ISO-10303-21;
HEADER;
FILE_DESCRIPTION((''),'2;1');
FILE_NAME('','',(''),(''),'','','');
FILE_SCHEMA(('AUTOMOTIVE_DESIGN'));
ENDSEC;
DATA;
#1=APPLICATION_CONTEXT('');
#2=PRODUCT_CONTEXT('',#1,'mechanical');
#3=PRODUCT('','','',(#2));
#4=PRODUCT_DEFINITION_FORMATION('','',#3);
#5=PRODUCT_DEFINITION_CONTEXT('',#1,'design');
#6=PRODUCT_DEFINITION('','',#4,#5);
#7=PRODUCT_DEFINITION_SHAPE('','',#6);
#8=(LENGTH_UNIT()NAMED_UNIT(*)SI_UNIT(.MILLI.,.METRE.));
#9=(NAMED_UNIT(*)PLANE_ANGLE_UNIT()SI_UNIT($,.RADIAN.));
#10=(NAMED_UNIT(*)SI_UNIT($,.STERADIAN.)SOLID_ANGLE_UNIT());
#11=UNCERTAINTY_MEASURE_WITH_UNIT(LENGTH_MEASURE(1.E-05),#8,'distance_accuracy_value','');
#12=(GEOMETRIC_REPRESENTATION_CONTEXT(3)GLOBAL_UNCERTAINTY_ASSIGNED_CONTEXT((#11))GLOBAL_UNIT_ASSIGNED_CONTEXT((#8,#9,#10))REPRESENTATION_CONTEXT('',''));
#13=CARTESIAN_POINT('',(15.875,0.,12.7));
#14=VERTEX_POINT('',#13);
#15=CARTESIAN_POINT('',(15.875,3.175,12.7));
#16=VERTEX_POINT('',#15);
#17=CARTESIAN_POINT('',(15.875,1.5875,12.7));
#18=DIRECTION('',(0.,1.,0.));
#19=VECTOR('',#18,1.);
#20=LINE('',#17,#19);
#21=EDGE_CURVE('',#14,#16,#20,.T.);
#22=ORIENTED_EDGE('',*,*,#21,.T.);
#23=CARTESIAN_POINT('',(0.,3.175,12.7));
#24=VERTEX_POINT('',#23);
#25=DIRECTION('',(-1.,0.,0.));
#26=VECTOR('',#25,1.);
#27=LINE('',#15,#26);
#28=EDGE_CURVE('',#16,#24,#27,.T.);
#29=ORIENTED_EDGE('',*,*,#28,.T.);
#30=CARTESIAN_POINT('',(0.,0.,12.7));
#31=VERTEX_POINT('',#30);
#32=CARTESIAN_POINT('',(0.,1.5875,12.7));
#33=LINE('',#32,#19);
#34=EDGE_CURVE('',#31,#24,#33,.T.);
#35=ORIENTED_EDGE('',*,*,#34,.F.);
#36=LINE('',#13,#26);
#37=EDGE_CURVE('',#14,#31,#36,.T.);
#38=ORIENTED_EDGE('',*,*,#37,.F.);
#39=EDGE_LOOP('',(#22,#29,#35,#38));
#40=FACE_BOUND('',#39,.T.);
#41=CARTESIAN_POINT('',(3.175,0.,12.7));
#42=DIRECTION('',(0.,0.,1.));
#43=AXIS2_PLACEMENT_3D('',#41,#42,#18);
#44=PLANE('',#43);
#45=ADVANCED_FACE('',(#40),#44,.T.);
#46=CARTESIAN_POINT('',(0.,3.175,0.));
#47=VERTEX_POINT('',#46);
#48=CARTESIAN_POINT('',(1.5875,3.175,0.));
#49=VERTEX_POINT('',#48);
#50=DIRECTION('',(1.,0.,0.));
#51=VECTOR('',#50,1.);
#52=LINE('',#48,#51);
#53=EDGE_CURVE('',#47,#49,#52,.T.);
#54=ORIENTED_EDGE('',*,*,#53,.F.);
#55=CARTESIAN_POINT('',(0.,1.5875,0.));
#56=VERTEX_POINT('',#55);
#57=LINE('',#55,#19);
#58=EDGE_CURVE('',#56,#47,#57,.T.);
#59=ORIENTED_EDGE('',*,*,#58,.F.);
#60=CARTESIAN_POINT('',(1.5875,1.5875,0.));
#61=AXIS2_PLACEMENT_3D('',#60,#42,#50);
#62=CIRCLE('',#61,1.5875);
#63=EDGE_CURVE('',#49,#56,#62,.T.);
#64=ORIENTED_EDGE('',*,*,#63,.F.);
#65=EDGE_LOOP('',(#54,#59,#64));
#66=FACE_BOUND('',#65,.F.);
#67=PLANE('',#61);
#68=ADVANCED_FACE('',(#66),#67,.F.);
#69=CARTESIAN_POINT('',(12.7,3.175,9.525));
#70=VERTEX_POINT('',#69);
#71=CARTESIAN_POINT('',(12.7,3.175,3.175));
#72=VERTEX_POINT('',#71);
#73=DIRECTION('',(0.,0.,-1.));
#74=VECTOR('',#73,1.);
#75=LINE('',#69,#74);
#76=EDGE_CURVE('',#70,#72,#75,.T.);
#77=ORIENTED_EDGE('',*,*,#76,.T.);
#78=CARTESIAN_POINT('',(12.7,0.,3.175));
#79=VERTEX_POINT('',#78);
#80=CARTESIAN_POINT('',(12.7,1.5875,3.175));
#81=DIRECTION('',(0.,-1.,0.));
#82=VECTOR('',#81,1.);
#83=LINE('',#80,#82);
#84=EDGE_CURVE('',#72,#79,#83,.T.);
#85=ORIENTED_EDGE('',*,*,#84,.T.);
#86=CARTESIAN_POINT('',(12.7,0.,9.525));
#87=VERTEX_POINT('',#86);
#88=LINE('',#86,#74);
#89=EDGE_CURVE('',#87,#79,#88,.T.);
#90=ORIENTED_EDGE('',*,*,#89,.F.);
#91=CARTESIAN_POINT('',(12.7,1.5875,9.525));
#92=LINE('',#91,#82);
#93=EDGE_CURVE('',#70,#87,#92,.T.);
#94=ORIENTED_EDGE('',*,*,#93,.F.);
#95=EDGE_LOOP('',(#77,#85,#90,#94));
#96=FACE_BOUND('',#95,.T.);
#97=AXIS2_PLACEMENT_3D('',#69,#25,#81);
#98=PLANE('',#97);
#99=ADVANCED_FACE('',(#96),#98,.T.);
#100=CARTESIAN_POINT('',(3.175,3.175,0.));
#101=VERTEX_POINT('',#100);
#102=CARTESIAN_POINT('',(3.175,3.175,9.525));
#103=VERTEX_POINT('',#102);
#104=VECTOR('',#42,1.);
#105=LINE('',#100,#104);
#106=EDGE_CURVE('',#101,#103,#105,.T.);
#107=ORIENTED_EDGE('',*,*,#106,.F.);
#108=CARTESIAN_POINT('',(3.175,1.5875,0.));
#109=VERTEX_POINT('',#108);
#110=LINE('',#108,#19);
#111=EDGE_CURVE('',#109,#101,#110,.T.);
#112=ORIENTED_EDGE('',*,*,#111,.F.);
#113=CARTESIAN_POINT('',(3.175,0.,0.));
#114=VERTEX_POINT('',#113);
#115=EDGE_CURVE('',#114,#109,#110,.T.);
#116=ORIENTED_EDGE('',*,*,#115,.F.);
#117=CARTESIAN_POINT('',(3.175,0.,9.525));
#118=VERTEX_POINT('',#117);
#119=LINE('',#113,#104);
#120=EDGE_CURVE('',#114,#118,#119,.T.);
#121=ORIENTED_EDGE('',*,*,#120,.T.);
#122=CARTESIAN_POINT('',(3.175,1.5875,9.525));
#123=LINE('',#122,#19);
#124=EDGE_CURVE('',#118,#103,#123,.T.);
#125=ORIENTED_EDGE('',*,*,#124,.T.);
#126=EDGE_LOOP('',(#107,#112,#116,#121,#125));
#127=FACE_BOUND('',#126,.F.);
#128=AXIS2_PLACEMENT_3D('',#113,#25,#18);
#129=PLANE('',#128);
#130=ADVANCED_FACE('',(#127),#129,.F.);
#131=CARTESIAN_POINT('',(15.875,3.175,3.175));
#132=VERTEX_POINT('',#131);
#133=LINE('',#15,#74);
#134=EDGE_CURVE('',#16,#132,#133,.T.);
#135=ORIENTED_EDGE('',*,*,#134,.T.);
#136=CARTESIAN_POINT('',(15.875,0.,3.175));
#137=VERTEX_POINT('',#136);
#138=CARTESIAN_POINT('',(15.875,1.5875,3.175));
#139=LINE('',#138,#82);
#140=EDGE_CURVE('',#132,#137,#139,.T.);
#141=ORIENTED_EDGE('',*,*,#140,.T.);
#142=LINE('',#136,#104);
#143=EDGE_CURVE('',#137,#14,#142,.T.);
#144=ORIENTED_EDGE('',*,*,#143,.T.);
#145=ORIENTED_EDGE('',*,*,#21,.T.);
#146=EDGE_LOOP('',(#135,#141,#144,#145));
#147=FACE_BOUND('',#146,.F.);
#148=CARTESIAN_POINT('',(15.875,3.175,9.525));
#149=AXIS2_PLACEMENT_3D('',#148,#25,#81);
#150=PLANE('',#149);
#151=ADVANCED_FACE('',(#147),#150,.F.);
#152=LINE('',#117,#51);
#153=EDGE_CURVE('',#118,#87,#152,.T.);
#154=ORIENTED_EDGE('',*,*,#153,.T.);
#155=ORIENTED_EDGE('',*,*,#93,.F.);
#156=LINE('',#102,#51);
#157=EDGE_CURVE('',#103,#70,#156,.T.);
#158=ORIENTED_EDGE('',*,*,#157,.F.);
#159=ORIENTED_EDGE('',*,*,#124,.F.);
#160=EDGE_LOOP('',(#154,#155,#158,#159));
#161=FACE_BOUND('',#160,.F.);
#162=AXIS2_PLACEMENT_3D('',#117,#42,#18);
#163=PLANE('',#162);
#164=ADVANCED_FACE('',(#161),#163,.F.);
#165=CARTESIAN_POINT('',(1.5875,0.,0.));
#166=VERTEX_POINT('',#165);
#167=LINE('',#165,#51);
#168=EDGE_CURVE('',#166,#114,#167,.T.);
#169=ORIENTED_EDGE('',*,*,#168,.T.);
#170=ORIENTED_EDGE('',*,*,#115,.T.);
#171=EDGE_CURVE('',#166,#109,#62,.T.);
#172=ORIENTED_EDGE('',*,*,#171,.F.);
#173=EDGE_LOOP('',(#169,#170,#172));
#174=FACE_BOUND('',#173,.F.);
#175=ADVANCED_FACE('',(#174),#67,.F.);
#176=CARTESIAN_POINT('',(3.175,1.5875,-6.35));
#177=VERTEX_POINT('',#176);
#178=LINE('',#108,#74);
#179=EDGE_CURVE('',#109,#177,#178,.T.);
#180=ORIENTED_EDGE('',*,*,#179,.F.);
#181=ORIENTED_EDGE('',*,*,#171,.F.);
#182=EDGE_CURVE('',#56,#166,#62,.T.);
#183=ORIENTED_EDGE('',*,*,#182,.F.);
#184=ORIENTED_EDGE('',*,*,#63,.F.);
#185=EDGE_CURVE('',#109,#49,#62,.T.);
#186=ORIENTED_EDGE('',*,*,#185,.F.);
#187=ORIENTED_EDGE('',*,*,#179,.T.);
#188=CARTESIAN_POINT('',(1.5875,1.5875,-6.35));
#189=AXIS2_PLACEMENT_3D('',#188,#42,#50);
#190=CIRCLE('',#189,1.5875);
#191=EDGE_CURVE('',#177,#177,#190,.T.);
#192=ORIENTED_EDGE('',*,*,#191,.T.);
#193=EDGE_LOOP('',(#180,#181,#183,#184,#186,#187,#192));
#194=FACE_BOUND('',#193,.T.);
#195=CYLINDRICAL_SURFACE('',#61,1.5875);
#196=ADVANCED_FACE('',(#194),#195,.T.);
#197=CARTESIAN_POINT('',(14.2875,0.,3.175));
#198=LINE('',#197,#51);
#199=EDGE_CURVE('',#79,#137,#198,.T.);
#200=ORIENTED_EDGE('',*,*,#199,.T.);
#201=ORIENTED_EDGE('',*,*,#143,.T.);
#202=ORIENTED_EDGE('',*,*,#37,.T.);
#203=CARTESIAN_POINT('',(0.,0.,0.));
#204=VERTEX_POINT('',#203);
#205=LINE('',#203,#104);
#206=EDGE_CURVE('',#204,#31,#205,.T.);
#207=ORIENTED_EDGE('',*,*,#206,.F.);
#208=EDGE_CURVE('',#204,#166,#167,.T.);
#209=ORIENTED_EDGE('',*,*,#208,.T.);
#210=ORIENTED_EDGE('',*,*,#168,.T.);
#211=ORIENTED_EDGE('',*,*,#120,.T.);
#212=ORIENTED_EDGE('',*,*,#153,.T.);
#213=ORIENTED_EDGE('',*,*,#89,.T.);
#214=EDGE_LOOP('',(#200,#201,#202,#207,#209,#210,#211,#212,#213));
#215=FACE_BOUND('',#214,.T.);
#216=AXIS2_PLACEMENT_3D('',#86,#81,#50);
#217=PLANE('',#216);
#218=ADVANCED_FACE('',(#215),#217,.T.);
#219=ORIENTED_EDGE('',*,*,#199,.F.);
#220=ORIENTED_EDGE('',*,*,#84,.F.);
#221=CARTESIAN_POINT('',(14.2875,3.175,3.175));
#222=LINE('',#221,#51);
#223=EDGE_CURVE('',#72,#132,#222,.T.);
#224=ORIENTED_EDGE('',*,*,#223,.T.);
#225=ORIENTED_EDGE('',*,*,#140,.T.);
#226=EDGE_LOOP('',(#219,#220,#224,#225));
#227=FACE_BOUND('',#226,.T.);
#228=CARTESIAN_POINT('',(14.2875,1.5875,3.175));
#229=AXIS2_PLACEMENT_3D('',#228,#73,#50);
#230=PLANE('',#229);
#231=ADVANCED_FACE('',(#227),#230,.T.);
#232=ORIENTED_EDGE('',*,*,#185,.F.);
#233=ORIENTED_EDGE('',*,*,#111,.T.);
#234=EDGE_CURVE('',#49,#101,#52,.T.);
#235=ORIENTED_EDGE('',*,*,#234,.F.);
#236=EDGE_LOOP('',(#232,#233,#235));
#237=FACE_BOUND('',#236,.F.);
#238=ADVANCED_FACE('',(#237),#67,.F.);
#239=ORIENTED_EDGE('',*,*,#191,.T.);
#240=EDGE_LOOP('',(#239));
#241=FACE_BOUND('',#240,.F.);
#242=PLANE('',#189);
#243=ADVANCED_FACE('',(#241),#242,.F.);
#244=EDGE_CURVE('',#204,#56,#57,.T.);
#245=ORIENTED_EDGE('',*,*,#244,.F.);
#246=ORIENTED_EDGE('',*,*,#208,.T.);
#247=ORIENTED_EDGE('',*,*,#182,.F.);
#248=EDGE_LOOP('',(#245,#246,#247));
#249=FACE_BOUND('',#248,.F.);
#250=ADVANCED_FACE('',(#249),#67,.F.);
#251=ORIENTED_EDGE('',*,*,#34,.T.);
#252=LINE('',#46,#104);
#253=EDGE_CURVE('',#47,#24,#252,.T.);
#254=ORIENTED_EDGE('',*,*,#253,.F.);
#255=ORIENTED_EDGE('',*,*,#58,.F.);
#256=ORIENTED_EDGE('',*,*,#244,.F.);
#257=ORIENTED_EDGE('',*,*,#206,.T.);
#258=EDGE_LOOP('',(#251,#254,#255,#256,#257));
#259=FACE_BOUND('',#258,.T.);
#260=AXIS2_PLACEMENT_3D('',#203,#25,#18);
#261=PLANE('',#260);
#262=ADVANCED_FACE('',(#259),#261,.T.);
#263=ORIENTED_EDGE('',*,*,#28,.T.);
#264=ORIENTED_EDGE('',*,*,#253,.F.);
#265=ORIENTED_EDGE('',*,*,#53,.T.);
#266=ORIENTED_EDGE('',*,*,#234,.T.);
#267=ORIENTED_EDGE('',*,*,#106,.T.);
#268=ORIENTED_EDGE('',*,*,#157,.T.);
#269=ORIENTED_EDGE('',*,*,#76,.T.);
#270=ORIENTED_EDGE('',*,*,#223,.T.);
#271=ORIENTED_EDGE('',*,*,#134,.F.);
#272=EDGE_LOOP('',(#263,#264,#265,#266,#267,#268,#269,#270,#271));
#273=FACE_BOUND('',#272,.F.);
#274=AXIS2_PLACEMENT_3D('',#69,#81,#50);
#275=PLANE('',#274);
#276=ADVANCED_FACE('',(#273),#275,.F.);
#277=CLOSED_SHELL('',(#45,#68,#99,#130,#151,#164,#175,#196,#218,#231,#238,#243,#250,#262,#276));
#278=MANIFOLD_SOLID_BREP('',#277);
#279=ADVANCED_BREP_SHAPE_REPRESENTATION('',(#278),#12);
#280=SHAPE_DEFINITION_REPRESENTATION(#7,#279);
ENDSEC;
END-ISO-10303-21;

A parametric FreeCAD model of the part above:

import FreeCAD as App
import Part
import Sketcher
Q = App.Units.Quantity


def add_polygon(sketch, points):
    """Adds a closed chain of lines whose ends are joined by coincident constraints."""
    first, n = sketch.GeometryCount, len(points)
    for a, b in zip(points, points[1:] + points[:1]):
        sketch.addGeometry(Part.LineSegment(App.Vector(*a, 0), App.Vector(*b, 0)), False)
    for i in range(n):
        sketch.addConstraint(Sketcher.Constraint("Coincident", first + i, 2, first + (i + 1) % n, 1))

doc = App.newDocument("Part")
body = doc.addObject("PartDesign::Body", "Body")

# Sketch on XY plane
sketch1 = body.newObject("Sketcher::SketchObject", "Sketch")
sketch1.AttachmentSupport = (doc.getObject("XY_Plane"), [""])
sketch1.MapMode = "FlatFace"
add_polygon(sketch1, [(0, 3.2), (0, 0), (3.2, 0), (3.2, 3.2)])  # lines 0-3
sketch1.addConstraint([
    Sketcher.Constraint("Vertical", 0),
    Sketcher.Constraint("Horizontal", 1),
    Sketcher.Constraint("Vertical", 2),
    Sketcher.Constraint("Horizontal", 3),
    Sketcher.Constraint("Coincident", 0, 2, -1, 1),
    Sketcher.Constraint("Equal", 3, 0),
    Sketcher.Constraint("DistanceX", 1, 1, 1, 2, Q("0.125 in")),
])
pad1 = body.newObject("PartDesign::Pad", "Pad")
pad1.Profile = sketch1
pad1.Length = Q("0.5 in")

# Sketch on YZ plane
sketch2 = body.newObject("Sketcher::SketchObject", "Sketch001")
sketch2.AttachmentSupport = (doc.getObject("YZ_Plane"), [""])
sketch2.MapMode = "FlatFace"
sketch2.AttachmentOffset = App.Placement(App.Vector(0, 0, 0.125 * 25.4), App.Rotation())
add_polygon(sketch2, [(0, 12.7), (0, 9.5), (3.2, 9.5), (3.2, 12.7)])  # lines 0-3
sketch2.addConstraint([
    Sketcher.Constraint("Vertical", 0),
    Sketcher.Constraint("Horizontal", 1),
    Sketcher.Constraint("Vertical", 2),
    Sketcher.Constraint("Horizontal", 3),
    Sketcher.Constraint("PointOnObject", 0, 2, -2),
    Sketcher.Constraint("Equal", 3, 0),
    Sketcher.Constraint("DistanceY", -1, 1, 2, 2, Q("0.5 in")),
    Sketcher.Constraint("DistanceX", 1, 1, 1, 2, Q("0.125 in")),
])
pad2 = body.newObject("PartDesign::Pad", "Pad001")
pad2.Profile = sketch2
pad2.Length = Q("0.5 in")

# Sketch on XY plane
sketch3 = body.newObject("Sketcher::SketchObject", "Sketch002")
sketch3.AttachmentSupport = (doc.getObject("XY_Plane"), [""])
sketch3.MapMode = "FlatFace"
sketch3.AttachmentOffset = App.Placement(App.Vector(0, 0, 0.375 * 25.4), App.Rotation())
add_polygon(sketch3, [(12.7, 0), (12.7, 3.2), (15.9, 3.2), (15.9, 0)])  # lines 0-3
sketch3.addConstraint([
    Sketcher.Constraint("Vertical", 0),
    Sketcher.Constraint("Horizontal", 1),
    Sketcher.Constraint("Vertical", 2),
    Sketcher.Constraint("Horizontal", 3),
    Sketcher.Constraint("PointOnObject", 2, 2, -1),
    Sketcher.Constraint("Equal", 3, 0),
    Sketcher.Constraint("DistanceX", -1, 1, 0, 2, Q("0.5 in")),
    Sketcher.Constraint("DistanceX", 1, 1, 1, 2, Q("0.125 in")),
])
pad3 = body.newObject("PartDesign::Pad", "Pad002")
pad3.Profile = sketch3
pad3.Length = Q("0.25 in")
pad3.Reversed = True

# Sketch on XY plane
sketch4 = body.newObject("Sketcher::SketchObject", "Sketch003")
sketch4.AttachmentSupport = (doc.getObject("XY_Plane"), [""])
sketch4.MapMode = "FlatFace"
sketch4.addGeometry(Part.Circle(App.Vector(1.6, 1.6, 0), App.Vector(0, 0, 1), 1.6), False)
sketch4.addConstraint([
    Sketcher.Constraint("Diameter", 0, Q("0.125 in")),
    Sketcher.Constraint("DistanceX", -1, 1, 0, 3, Q("0.0625 in")),
    Sketcher.Constraint("DistanceY", -1, 1, 0, 3, Q("0.0625 in")),
])
pad4 = body.newObject("PartDesign::Pad", "Pad003")
pad4.Profile = sketch4
pad4.Length = Q("0.25 in")
pad4.Reversed = True

doc.recompute()
